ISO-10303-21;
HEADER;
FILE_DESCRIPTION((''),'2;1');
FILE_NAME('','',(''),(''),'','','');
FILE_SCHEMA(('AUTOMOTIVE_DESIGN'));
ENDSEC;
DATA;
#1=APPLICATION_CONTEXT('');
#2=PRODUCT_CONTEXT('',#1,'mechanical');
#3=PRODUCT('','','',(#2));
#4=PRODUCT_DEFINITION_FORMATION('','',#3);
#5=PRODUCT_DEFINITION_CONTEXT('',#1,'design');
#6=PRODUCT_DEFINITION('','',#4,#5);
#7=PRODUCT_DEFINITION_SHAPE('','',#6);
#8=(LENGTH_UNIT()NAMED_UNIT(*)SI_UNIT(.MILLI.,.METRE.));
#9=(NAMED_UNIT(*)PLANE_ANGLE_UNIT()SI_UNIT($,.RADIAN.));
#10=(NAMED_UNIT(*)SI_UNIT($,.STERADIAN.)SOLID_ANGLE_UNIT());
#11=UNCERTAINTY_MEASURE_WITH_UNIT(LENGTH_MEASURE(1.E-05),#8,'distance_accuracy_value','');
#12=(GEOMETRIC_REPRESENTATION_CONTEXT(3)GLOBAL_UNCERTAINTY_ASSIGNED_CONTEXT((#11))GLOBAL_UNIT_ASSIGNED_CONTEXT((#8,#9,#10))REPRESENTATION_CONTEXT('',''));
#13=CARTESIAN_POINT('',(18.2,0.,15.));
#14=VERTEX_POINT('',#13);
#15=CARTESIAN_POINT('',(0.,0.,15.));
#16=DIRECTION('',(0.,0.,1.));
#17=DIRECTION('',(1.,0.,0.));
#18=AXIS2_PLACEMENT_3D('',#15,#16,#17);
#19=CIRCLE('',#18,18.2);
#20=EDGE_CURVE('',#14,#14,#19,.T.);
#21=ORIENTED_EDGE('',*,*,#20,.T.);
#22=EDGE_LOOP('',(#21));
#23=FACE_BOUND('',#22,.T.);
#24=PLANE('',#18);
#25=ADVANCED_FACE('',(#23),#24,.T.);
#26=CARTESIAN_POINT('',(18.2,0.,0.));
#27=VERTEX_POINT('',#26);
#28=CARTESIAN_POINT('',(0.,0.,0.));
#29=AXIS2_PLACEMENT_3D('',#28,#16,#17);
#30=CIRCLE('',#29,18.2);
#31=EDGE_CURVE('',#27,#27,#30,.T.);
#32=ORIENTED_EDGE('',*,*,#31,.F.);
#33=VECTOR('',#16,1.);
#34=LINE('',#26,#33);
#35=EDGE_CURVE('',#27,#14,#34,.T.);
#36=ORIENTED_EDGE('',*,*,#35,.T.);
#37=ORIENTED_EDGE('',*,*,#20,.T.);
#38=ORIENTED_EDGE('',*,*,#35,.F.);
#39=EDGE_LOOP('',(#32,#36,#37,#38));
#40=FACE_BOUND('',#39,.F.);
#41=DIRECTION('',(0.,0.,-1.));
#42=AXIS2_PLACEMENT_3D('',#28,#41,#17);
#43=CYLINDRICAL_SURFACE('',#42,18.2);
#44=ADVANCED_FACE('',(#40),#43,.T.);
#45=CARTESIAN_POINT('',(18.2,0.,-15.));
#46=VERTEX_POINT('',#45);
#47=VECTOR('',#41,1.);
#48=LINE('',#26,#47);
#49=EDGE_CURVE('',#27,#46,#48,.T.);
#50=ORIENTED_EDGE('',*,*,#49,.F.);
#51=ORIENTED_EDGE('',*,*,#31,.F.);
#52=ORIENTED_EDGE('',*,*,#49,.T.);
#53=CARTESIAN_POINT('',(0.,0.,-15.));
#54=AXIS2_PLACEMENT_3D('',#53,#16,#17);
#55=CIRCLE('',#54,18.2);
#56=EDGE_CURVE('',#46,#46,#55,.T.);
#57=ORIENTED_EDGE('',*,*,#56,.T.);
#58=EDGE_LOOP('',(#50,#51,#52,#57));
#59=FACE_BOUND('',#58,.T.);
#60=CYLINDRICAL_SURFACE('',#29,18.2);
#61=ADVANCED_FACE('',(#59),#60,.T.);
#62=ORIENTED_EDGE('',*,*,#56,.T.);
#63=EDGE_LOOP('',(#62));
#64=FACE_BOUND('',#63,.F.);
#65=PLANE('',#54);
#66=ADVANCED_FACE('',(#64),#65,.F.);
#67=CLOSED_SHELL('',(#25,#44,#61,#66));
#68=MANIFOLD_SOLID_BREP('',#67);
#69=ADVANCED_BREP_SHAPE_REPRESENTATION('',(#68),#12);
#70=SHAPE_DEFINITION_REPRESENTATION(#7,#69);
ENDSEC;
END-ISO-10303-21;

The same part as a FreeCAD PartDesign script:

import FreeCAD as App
import Part
import Sketcher

doc = App.newDocument("Part")
params = doc.addObject("Spreadsheet::Sheet", "Params")
for row, (alias, value) in enumerate([
    ("sketch1_diameter", "36.4 mm"),
    ("pad1_length", "15 mm"),
    ("pad1_length2", "15 mm"),
], start=1):
    params.set(f"A{row}", alias)
    params.set(f"B{row}", "=" + value)
    params.setAlias(f"B{row}", alias)

body = doc.addObject("PartDesign::Body", "Body")

# Sketch on XY plane
sketch1 = body.newObject("Sketcher::SketchObject", "Sketch")
sketch1.AttachmentSupport = (doc.getObject("XY_Plane"), [""])
sketch1.MapMode = "FlatFace"
sketch1.addGeometry(Part.Circle(App.Vector(0, 0, 0), App.Vector(0, 0, 1), 18.2), False)
sketch1.addConstraint([
    Sketcher.Constraint("Coincident", 0, 3, -1, 1),
    Sketcher.Constraint("Diameter", 0, 36.4),
])
sketch1.setExpression("Constraints[1]", "Params.sketch1_diameter")
pad1 = body.newObject("PartDesign::Pad", "Pad")
pad1.Profile = sketch1
pad1.Type = "TwoLengths"
pad1.setExpression("Length", "Params.pad1_length")
pad1.setExpression("Length2", "Params.pad1_length2")

doc.recompute()
